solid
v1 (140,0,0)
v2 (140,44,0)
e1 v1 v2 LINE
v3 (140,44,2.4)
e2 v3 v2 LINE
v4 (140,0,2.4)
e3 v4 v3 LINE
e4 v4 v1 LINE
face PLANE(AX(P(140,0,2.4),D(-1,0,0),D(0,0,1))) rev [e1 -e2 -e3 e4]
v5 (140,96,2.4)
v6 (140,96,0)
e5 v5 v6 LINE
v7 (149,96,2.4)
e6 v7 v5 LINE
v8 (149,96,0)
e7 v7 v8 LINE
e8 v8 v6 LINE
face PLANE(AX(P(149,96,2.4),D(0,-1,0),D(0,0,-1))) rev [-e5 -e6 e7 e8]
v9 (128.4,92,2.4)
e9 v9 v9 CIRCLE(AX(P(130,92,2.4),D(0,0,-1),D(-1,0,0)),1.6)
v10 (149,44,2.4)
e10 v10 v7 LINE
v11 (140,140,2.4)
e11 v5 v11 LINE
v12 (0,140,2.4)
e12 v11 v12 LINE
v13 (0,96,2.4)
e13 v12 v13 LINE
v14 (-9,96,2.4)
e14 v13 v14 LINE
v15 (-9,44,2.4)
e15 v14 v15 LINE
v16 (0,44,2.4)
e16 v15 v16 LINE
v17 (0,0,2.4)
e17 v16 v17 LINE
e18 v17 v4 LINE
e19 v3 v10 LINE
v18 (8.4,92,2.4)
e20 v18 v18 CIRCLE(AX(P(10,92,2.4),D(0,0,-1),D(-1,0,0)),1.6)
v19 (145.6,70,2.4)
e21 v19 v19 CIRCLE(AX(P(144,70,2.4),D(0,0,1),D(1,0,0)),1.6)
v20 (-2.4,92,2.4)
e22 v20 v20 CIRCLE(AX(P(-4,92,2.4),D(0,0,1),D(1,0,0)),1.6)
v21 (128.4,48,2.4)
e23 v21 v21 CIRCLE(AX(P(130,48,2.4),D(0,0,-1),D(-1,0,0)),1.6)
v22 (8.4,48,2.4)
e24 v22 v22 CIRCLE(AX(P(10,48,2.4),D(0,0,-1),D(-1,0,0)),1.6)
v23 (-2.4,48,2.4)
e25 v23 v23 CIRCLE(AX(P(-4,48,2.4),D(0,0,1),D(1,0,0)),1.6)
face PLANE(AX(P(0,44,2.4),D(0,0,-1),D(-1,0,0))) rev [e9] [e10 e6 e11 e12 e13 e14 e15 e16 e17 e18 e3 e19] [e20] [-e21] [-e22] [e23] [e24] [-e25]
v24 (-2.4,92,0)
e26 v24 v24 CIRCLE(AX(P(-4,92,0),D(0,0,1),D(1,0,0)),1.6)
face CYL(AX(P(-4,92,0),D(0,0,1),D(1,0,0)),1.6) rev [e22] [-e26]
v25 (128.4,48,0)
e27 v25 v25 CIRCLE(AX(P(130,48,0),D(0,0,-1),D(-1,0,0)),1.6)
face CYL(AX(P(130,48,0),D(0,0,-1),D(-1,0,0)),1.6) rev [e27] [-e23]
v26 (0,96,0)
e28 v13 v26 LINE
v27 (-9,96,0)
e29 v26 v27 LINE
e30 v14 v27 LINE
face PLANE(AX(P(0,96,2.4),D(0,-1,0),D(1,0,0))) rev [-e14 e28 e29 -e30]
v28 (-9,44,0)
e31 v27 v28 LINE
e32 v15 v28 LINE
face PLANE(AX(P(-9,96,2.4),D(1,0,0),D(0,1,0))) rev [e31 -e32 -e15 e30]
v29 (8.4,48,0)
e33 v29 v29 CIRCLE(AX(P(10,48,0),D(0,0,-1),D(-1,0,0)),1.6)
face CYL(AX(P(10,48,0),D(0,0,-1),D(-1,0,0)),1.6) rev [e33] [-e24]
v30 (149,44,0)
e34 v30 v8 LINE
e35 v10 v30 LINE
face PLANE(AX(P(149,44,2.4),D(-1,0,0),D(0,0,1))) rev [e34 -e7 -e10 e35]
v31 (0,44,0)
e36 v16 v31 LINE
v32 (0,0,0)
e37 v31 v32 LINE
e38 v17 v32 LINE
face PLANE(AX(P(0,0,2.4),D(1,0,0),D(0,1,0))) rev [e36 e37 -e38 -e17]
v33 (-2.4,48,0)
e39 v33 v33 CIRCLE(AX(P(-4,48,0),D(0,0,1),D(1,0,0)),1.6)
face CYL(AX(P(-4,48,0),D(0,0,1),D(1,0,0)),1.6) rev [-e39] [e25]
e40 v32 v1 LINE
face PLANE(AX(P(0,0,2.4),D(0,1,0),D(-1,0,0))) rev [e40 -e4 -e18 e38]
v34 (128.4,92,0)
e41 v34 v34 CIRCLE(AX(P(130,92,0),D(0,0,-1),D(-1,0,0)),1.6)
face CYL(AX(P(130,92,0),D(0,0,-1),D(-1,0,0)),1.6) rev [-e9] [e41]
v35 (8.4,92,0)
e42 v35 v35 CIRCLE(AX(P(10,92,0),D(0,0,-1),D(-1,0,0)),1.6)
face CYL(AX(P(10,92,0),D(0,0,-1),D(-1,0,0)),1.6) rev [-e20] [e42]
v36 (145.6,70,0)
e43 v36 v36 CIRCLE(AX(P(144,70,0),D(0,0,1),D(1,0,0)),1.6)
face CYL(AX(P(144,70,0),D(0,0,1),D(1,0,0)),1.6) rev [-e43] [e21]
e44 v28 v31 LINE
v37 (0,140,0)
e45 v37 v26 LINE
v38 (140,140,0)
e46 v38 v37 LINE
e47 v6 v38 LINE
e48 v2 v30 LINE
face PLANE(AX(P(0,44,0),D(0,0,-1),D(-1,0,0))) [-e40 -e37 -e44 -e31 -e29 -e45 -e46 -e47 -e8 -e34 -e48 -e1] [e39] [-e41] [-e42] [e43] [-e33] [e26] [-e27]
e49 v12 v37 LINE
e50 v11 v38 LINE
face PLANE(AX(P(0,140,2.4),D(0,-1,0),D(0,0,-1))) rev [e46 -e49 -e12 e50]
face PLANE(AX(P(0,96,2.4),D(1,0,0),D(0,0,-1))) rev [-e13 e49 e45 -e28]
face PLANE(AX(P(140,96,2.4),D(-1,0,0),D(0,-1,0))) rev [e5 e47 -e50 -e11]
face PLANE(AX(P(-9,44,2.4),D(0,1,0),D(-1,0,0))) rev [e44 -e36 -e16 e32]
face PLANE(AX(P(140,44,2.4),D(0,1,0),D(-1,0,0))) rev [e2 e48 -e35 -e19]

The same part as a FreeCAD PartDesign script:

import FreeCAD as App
import Part
import Sketcher

V = App.Vector

doc = App.newDocument("Part")
params = doc.addObject("Spreadsheet::Sheet", "Params")
for row, (alias, value) in enumerate([
    ("sketch1_width", "140 mm"),
    ("sketch1_width2", "9 mm"),
    ("sketch1_height", "44 mm"),
    ("sketch1_height2", "52 mm"),
    ("pad1_length", "2.4 mm"),
    ("sketch2_diameter", "3.2 mm"),
    ("hole_diameter", "3.2 mm"),
    ("hole_depth", "4 mm"),
    ("sketch3_diameter", "3.2 mm"),
], start=1):
    params.set(f"A{row}", alias)
    params.set(f"B{row}", "=" + value)
    params.setAlias(f"B{row}", alias)

body = doc.addObject("PartDesign::Body", "Body")

# Sketch on XY plane
sketch1 = body.newObject("Sketcher::SketchObject", "Sketch")
sketch1.AttachmentSupport = (doc.getObject("XY_Plane"), [""])
sketch1.MapMode = "FlatFace"
sketch1.addGeometry([
    Part.LineSegment(V(0, 0, 0), V(140, 0, 0)),  # 0
    Part.LineSegment(V(140, 0, 0), V(140, 44, 0)),  # 1
    Part.LineSegment(V(140, 44, 0), V(149, 44, 0)),  # 2
    Part.LineSegment(V(149, 44, 0), V(149, 96, 0)),  # 3
    Part.LineSegment(V(149, 96, 0), V(140, 96, 0)),  # 4
    Part.LineSegment(V(140, 96, 0), V(140, 140, 0)),  # 5
    Part.LineSegment(V(140, 140, 0), V(0, 140, 0)),  # 6
    Part.LineSegment(V(0, 140, 0), V(0, 96, 0)),  # 7
    Part.LineSegment(V(0, 96, 0), V(-9, 96, 0)),  # 8
    Part.LineSegment(V(-9, 96, 0), V(-9, 44, 0)),  # 9
    Part.LineSegment(V(-9, 44, 0), V(0, 44, 0)),  # 10
    Part.LineSegment(V(0, 44, 0), V(0, 0, 0)),  # 11
], False)
sketch1.addConstraint([
    Sketcher.Constraint("Coincident", 0, 2, 1, 1),
    Sketcher.Constraint("Coincident", 1, 2, 2, 1),
    Sketcher.Constraint("Coincident", 2, 2, 3, 1),
    Sketcher.Constraint("Coincident", 3, 2, 4, 1),
    Sketcher.Constraint("Coincident", 4, 2, 5, 1),
    Sketcher.Constraint("Coincident", 5, 2, 6, 1),
    Sketcher.Constraint("Coincident", 6, 2, 7, 1),
    Sketcher.Constraint("Coincident", 7, 2, 8, 1),
    Sketcher.Constraint("Coincident", 8, 2, 9, 1),
    Sketcher.Constraint("Coincident", 9, 2, 10, 1),
    Sketcher.Constraint("Coincident", 10, 2, 11, 1),
    Sketcher.Constraint("Coincident", 11, 2, 0, 1),
    Sketcher.Constraint("Horizontal", 0),
    Sketcher.Constraint("Vertical", 1),
    Sketcher.Constraint("Horizontal", 2),
    Sketcher.Constraint("Vertical", 3),
    Sketcher.Constraint("Horizontal", 4),
    Sketcher.Constraint("Vertical", 5),
    Sketcher.Constraint("Horizontal", 6),
    Sketcher.Constraint("Vertical", 7),
    Sketcher.Constraint("Horizontal", 8),
    Sketcher.Constraint("Vertical", 9),
    Sketcher.Constraint("Horizontal", 10),
    Sketcher.Constraint("Vertical", 11),
    Sketcher.Constraint("Coincident", 11, 2, -1, 1),
    Sketcher.Constraint("PointOnObject", 6, 2, -2),
    Sketcher.Constraint("Horizontal", 4, 2, 7, 2),
    Sketcher.Constraint("Horizontal", 2, 2, 9, 2),
    Sketcher.Constraint("Vertical", 1, 2, 4, 2),
    Sketcher.Constraint("Equal", 4, 8),
    Sketcher.Constraint("Equal", 1, 5),
    Sketcher.Constraint("DistanceX", 0, 1, 0, 2, 140.0),
    Sketcher.Constraint("DistanceX", 2, 1, 2, 2, 9.0),
    Sketcher.Constraint("DistanceY", 1, 1, 1, 2, 44.0),
    Sketcher.Constraint("DistanceY", 3, 1, 3, 2, 52.0),
])
sketch1.setExpression("Constraints[31]", "Params.sketch1_width")
sketch1.setExpression("Constraints[32]", "Params.sketch1_width2")
sketch1.setExpression("Constraints[33]", "Params.sketch1_height")
sketch1.setExpression("Constraints[34]", "Params.sketch1_height2")
pad1 = body.newObject("PartDesign::Pad", "Pad")
pad1.Profile = sketch1
pad1.setExpression("Length", "Params.pad1_length")

# Sketch on XY plane
sketch2 = body.newObject("Sketcher::SketchObject", "Sketch001")
sketch2.AttachmentSupport = (doc.getObject("XY_Plane"), [""])
sketch2.MapMode = "FlatFace"
sketch2.addGeometry([
    Part.Circle(V(130, 92, 0), V(0, 0, 1), 1.6),
    Part.Circle(V(130, 48, 0), V(0, 0, 1), 1.6),
    Part.Circle(V(10, 92, 0), V(0, 0, 1), 1.6),
    Part.Circle(V(10, 48, 0), V(0, 0, 1), 1.6),
], False)
sketch2.addConstraint([
    Sketcher.Constraint("Equal", 0, 1),
    Sketcher.Constraint("Equal", 1, 2),
    Sketcher.Constraint("Equal", 2, 3),
    Sketcher.Constraint("Horizontal", 0, 3, 2, 3),
    Sketcher.Constraint("Horizontal", 1, 3, 3, 3),
    Sketcher.Constraint("Vertical", 0, 3, 1, 3),
    Sketcher.Constraint("Vertical", 2, 3, 3, 3),
    Sketcher.Constraint("Diameter", 0, 3.2),
    Sketcher.Constraint("DistanceX", -1, 1, 0, 3, 130.0),
    Sketcher.Constraint("DistanceY", -1, 1, 0, 3, 92.0),
    Sketcher.Constraint("DistanceY", -1, 1, 1, 3, 48.0),
    Sketcher.Constraint("DistanceX", -1, 1, 2, 3, 10.0),
])
sketch2.setExpression("Constraints[7]", "Params.sketch2_diameter")
doc.recompute()
hole = body.newObject("PartDesign::Hole", "Hole")
hole.Profile = sketch2
hole.ThreadType = "None"
hole.setExpression("Diameter", "Params.hole_diameter")
hole.DepthType = "Dimension"
hole.setExpression("Depth", "Params.hole_depth")
hole.DrillPoint = "Angled"
hole.DrillPointAngle = 118
hole.Reversed = True

# Sketch on XY plane
sketch3 = body.newObject("Sketcher::SketchObject", "Sketch002")
sketch3.AttachmentSupport = (doc.getObject("XY_Plane"), [""])
sketch3.MapMode = "FlatFace"
sketch3.AttachmentOffset = App.Placement(V(0, 0, 2.4), App.Rotation())
sketch3.addGeometry([
    Part.Circle(V(-4, 92, 0), V(0, 0, 1), 1.6),
    Part.Circle(V(-4, 48, 0), V(0, 0, 1), 1.6),
    Part.Circle(V(144, 70, 0), V(0, 0, 1), 1.6),
], False)
sketch3.addConstraint([
    Sketcher.Constraint("Equal", 0, 1),
    Sketcher.Constraint("Equal", 1, 2),
    Sketcher.Constraint("Vertical", 0, 3, 1, 3),
    Sketcher.Constraint("Diameter", 0, 3.2),
    Sketcher.Constraint("DistanceX", 0, 3, -1, 1, 4.0),
    Sketcher.Constraint("DistanceY", -1, 1, 0, 3, 92.0),
    Sketcher.Constraint("DistanceY", -1, 1, 1, 3, 48.0),
    Sketcher.Constraint("DistanceX", -1, 1, 2, 3, 144.0),
    Sketcher.Constraint("DistanceY", -1, 1, 2, 3, 70.0),
])
sketch3.setExpression("Constraints[3]", "Params.sketch3_diameter")
pocket1 = body.newObject("PartDesign::Pocket", "Pocket")
pocket1.Profile = sketch3
pocket1.Type = "ThroughAll"

doc.recompute()
